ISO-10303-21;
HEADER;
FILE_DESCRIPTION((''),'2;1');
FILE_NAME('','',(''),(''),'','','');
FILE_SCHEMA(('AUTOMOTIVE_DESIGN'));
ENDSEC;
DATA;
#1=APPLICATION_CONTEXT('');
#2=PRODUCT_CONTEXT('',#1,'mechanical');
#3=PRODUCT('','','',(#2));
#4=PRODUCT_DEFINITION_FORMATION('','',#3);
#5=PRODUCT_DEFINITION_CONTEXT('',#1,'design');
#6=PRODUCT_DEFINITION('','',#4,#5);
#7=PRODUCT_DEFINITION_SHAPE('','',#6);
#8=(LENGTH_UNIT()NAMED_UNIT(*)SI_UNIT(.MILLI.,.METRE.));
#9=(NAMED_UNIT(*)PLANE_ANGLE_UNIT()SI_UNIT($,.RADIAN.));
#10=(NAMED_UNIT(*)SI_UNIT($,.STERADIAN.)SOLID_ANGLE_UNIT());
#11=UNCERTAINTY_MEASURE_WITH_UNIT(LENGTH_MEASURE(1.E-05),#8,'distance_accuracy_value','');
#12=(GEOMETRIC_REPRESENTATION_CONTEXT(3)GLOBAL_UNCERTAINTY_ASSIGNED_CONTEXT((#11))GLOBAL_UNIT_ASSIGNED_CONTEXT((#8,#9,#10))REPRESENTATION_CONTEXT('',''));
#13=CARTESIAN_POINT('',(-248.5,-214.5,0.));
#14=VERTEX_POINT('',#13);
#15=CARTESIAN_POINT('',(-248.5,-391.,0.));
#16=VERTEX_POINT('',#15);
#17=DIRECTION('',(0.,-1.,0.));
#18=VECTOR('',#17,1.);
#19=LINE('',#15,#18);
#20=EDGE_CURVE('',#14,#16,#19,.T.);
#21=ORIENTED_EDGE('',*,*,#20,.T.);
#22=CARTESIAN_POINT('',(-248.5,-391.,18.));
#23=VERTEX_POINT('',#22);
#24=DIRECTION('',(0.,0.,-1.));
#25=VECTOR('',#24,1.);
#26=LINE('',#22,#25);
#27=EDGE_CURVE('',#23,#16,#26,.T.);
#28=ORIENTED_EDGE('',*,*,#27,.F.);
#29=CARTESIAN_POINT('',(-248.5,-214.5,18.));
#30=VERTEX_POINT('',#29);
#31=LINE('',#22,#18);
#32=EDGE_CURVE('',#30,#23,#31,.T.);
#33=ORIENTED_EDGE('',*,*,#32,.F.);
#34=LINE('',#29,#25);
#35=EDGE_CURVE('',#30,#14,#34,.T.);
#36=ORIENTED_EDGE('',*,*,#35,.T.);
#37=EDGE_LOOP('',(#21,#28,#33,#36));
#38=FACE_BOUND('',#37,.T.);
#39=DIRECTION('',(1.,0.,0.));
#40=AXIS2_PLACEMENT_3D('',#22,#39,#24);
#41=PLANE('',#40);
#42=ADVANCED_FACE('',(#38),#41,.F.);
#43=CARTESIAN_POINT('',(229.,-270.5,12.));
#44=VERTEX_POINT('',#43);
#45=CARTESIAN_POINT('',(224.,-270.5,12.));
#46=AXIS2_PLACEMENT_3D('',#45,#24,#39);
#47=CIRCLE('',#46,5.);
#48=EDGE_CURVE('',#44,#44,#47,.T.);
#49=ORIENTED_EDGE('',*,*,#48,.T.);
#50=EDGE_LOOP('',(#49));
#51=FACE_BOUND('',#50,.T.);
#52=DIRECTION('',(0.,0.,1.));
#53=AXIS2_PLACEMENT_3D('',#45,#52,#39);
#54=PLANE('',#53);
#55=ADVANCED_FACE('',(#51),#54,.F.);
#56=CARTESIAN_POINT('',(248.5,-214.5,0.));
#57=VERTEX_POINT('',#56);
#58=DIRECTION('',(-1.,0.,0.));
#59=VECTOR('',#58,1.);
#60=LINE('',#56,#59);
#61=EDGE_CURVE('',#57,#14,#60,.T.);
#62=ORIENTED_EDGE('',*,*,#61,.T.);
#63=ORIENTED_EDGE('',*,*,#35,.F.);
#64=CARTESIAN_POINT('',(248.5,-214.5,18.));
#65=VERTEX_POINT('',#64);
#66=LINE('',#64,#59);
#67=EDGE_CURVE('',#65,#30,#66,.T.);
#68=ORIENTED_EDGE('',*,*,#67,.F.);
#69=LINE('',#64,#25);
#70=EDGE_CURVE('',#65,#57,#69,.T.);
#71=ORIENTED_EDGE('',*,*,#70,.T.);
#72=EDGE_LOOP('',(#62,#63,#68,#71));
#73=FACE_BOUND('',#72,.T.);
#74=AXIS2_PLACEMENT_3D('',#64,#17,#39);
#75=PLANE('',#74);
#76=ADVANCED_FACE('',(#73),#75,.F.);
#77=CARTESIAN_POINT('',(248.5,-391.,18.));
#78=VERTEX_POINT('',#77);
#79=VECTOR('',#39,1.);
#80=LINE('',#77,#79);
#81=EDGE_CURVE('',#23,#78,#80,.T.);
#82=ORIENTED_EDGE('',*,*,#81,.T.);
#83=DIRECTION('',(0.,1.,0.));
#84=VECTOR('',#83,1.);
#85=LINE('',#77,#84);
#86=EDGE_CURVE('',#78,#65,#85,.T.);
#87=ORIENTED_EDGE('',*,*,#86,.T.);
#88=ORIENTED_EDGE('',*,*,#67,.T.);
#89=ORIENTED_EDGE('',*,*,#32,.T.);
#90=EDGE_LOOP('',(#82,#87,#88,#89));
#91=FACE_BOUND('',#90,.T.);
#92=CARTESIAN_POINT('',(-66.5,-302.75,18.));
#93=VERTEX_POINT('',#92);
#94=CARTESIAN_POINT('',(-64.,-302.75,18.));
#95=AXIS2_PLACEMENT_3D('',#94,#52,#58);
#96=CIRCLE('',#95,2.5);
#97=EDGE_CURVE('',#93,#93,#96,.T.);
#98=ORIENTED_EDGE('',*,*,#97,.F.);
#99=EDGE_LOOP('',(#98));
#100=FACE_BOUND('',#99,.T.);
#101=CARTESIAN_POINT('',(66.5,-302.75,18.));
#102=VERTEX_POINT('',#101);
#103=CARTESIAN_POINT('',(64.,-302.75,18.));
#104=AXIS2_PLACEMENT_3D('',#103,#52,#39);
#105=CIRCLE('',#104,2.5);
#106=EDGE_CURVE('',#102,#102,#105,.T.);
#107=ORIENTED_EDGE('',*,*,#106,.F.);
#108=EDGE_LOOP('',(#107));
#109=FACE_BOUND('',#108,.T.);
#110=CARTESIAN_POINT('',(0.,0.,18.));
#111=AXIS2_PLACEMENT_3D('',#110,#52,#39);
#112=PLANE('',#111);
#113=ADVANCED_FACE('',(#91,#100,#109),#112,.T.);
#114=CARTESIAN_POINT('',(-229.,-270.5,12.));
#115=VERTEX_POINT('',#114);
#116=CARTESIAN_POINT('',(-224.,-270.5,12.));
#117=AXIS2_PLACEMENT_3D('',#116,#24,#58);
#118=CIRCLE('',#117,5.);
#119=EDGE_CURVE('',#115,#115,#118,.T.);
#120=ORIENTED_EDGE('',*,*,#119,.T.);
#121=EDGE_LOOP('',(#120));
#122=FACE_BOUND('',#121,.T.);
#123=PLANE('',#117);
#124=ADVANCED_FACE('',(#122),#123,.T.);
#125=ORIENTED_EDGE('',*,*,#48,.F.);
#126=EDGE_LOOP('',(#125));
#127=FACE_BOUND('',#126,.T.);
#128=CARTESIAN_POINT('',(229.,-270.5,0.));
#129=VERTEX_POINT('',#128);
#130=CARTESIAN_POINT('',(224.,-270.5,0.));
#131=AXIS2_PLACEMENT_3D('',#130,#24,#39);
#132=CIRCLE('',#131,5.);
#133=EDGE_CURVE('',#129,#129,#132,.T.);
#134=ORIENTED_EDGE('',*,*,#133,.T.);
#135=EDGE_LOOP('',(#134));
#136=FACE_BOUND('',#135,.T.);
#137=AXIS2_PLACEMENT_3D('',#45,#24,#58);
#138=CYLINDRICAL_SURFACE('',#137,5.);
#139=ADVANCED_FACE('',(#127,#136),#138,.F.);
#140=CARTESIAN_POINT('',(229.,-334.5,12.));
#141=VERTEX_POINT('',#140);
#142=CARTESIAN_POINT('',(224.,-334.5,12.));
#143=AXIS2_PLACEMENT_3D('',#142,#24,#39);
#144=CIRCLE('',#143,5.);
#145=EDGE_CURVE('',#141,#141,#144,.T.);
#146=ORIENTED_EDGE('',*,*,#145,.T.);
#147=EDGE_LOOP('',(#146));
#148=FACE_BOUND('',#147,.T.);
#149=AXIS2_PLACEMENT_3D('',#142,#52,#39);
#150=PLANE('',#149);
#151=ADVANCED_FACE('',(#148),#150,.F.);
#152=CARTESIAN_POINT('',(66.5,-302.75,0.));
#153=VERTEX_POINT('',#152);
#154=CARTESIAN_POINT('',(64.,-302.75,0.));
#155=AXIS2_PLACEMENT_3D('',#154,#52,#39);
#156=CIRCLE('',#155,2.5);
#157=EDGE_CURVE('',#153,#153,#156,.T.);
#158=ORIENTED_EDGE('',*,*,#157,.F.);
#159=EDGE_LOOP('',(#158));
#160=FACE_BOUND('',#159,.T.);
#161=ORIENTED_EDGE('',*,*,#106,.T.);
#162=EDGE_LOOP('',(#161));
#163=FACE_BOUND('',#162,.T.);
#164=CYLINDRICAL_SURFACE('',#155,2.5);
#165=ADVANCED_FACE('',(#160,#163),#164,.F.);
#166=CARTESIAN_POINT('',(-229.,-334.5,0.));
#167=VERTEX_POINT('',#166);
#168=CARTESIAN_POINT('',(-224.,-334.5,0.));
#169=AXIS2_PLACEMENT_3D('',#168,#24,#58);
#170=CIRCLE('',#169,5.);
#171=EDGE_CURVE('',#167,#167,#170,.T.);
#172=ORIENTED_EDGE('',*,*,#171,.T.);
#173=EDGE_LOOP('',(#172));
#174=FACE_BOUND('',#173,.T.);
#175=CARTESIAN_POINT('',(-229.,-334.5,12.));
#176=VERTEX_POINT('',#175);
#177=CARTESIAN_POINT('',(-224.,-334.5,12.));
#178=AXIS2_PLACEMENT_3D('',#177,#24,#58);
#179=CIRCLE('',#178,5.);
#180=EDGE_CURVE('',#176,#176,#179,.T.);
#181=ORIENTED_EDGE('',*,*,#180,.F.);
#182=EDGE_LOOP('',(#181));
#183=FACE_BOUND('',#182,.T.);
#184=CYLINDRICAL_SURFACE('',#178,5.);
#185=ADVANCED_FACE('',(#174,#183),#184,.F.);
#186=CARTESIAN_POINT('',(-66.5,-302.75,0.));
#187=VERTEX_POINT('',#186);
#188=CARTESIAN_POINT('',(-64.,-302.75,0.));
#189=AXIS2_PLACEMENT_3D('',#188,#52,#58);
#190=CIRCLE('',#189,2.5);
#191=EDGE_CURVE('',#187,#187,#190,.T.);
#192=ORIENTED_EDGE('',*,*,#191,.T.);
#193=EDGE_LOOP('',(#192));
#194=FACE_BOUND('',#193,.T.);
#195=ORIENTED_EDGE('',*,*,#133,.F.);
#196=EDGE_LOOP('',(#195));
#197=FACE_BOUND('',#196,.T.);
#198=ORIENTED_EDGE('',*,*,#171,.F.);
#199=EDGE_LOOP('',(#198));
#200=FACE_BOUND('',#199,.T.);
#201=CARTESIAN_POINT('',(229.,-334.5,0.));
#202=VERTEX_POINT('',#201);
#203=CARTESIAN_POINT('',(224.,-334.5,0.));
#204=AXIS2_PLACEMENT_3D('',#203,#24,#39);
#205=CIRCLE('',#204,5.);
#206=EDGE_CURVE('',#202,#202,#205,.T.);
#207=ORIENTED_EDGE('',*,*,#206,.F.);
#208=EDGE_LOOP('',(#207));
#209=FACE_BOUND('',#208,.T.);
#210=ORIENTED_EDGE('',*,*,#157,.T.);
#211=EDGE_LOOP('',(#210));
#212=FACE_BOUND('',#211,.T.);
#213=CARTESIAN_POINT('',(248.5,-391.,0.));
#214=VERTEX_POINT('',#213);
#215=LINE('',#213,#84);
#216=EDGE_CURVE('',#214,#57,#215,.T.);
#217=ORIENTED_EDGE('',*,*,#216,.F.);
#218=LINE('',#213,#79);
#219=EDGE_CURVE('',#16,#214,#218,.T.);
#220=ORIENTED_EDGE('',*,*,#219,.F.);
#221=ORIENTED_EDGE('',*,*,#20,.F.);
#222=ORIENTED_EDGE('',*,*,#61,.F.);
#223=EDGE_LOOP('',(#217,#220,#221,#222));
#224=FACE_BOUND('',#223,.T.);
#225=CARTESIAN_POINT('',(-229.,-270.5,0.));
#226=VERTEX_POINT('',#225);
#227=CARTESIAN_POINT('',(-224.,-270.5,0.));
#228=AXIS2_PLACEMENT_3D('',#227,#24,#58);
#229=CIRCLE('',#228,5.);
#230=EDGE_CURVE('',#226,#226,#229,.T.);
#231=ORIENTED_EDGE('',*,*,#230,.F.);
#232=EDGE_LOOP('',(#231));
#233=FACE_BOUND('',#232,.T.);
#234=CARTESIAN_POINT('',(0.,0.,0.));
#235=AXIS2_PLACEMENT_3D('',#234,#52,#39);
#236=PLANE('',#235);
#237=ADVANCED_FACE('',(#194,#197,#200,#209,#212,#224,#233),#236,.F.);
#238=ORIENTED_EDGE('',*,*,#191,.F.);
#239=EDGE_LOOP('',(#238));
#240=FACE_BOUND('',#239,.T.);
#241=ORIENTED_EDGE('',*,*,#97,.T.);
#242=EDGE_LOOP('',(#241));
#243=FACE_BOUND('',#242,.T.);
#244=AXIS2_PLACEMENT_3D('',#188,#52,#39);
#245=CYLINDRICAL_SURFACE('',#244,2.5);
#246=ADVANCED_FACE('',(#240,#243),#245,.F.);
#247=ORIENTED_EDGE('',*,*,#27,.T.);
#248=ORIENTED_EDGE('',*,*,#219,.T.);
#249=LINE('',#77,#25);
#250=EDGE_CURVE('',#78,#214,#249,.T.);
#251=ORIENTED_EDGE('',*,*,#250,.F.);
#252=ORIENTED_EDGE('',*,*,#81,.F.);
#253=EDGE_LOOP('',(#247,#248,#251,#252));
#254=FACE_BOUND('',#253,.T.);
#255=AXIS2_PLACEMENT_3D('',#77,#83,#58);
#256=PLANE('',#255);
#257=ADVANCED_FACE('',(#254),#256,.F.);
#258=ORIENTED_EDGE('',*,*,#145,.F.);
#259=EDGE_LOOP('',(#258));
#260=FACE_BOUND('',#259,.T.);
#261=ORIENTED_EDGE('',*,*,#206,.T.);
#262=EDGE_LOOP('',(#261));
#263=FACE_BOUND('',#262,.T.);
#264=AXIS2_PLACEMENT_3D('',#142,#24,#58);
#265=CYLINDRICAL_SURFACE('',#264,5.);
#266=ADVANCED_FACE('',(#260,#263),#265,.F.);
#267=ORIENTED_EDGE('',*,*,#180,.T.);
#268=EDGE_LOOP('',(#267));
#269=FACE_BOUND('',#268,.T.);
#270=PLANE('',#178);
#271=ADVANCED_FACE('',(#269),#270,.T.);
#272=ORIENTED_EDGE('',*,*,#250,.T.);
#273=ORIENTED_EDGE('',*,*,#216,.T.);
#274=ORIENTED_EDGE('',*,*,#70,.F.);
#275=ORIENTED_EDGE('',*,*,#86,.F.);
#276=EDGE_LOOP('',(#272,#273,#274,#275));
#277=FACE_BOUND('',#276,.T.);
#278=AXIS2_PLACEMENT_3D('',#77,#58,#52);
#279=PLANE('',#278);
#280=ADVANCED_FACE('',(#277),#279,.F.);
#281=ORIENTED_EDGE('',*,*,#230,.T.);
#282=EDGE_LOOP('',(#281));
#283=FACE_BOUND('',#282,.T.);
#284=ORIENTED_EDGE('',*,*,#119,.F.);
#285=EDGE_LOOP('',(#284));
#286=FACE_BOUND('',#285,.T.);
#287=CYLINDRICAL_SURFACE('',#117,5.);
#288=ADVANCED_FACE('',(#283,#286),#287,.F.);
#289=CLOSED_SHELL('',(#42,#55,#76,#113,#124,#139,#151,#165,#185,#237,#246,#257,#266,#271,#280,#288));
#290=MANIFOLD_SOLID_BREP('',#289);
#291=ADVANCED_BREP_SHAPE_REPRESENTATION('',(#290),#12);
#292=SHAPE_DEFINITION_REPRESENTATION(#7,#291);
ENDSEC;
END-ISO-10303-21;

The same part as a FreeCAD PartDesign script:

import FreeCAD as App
import Part
import Sketcher

doc = App.newDocument("Part")
body = doc.addObject("PartDesign::Body", "Body")

# Sketch on XY plane
sketch1 = body.newObject("Sketcher::SketchObject", "Sketch")
sketch1.AttachmentSupport = (doc.getObject("XY_Plane"), [""])
sketch1.MapMode = "FlatFace"
sketch1.addGeometry(Part.LineSegment(App.Vector(-248, -214, 0), App.Vector(-248, -391, 0)), False)
sketch1.addGeometry(Part.LineSegment(App.Vector(-248, -391, 0), App.Vector(248, -391, 0)), False)
sketch1.addGeometry(Part.LineSegment(App.Vector(248, -391, 0), App.Vector(248, -214, 0)), False)
sketch1.addGeometry(Part.LineSegment(App.Vector(248, -214, 0), App.Vector(-248, -214, 0)), False)
sketch1.addConstraint(Sketcher.Constraint("Coincident", 0, 2, 1, 1))
sketch1.addConstraint(Sketcher.Constraint("Coincident", 1, 2, 2, 1))
sketch1.addConstraint(Sketcher.Constraint("Coincident", 2, 2, 3, 1))
sketch1.addConstraint(Sketcher.Constraint("Coincident", 3, 2, 0, 1))
sketch1.addConstraint(Sketcher.Constraint("Vertical", 0))
sketch1.addConstraint(Sketcher.Constraint("Horizontal", 1))
sketch1.addConstraint(Sketcher.Constraint("Vertical", 2))
sketch1.addConstraint(Sketcher.Constraint("Horizontal", 3))
sketch1.addConstraint(Sketcher.Constraint("DistanceX", 1, 1, 1, 2, 497.0))
sketch1.addConstraint(Sketcher.Constraint("DistanceY", 0, 2, 0, 1, 176.5))
sketch1.addConstraint(Sketcher.Constraint("DistanceY", 0, 2, -1, 1, 391.0))
sketch1.addConstraint(Sketcher.Constraint("DistanceX", 0, 2, -1, 1, 248.5))
pad1 = body.newObject("PartDesign::Pad", "Pad")
pad1.Profile = sketch1
pad1.Length = 18

# Sketch on XY plane
sketch2 = body.newObject("Sketcher::SketchObject", "Sketch001")
sketch2.AttachmentSupport = (doc.getObject("XY_Plane"), [""])
sketch2.MapMode = "FlatFace"
sketch2.AttachmentOffset = App.Placement(App.Vector(0, 0, 18), App.Rotation())
sketch2.addGeometry(Part.Circle(App.Vector(64, -302.8, 0), App.Vector(0, 0, 1), 2.5), False)
sketch2.addGeometry(Part.Circle(App.Vector(-64, -302.8, 0), App.Vector(0, 0, 1), 2.5), False)
sketch2.addConstraint(Sketcher.Constraint("Equal", 0, 1))
sketch2.addConstraint(Sketcher.Constraint("Symmetric", 0, 3, 1, 3, -2))
sketch2.addConstraint(Sketcher.Constraint("Diameter", 0, 5.0))
sketch2.addConstraint(Sketcher.Constraint("DistanceX", -1, 1, 0, 3, 64.0))
sketch2.addConstraint(Sketcher.Constraint("DistanceY", 0, 3, -1, 1, 302.75))
pocket1 = body.newObject("PartDesign::Pocket", "Pocket")
pocket1.Profile = sketch2
pocket1.Length = 18

# Sketch on XY plane
sketch3 = body.newObject("Sketcher::SketchObject", "Sketch002")
sketch3.AttachmentSupport = (doc.getObject("XY_Plane"), [""])
sketch3.MapMode = "FlatFace"
sketch3.addGeometry(Part.Circle(App.Vector(-224, -270, 0), App.Vector(0, 0, 1), 5), False)
sketch3.addGeometry(Part.Circle(App.Vector(224, -270, 0), App.Vector(0, 0, 1), 5), False)
sketch3.addGeometry(Part.Circle(App.Vector(-224, -334, 0), App.Vector(0, 0, 1), 5), False)
sketch3.addGeometry(Part.Circle(App.Vector(224, -334, 0), App.Vector(0, 0, 1), 5), False)
sketch3.addConstraint(Sketcher.Constraint("Equal", 0, 1))
sketch3.addConstraint(Sketcher.Constraint("Equal", 1, 2))
sketch3.addConstraint(Sketcher.Constraint("Equal", 2, 3))
sketch3.addConstraint(Sketcher.Constraint("Symmetric", 0, 3, 1, 3, -2))
sketch3.addConstraint(Sketcher.Constraint("Symmetric", 2, 3, 3, 3, -2))
sketch3.addConstraint(Sketcher.Constraint("Vertical", 0, 3, 2, 3))
sketch3.addConstraint(Sketcher.Constraint("Diameter", 0, 10.0))
sketch3.addConstraint(Sketcher.Constraint("DistanceX", 0, 3, -1, 1, 224.0))
sketch3.addConstraint(Sketcher.Constraint("DistanceY", 2, 3, 0, 3, 64.0))
sketch3.addConstraint(Sketcher.Constraint("DistanceY", 0, 3, -1, 1, 270.5))
pocket2 = body.newObject("PartDesign::Pocket", "Pocket001")
pocket2.Profile = sketch3
pocket2.Length = 12
pocket2.Reversed = True

doc.recompute()
